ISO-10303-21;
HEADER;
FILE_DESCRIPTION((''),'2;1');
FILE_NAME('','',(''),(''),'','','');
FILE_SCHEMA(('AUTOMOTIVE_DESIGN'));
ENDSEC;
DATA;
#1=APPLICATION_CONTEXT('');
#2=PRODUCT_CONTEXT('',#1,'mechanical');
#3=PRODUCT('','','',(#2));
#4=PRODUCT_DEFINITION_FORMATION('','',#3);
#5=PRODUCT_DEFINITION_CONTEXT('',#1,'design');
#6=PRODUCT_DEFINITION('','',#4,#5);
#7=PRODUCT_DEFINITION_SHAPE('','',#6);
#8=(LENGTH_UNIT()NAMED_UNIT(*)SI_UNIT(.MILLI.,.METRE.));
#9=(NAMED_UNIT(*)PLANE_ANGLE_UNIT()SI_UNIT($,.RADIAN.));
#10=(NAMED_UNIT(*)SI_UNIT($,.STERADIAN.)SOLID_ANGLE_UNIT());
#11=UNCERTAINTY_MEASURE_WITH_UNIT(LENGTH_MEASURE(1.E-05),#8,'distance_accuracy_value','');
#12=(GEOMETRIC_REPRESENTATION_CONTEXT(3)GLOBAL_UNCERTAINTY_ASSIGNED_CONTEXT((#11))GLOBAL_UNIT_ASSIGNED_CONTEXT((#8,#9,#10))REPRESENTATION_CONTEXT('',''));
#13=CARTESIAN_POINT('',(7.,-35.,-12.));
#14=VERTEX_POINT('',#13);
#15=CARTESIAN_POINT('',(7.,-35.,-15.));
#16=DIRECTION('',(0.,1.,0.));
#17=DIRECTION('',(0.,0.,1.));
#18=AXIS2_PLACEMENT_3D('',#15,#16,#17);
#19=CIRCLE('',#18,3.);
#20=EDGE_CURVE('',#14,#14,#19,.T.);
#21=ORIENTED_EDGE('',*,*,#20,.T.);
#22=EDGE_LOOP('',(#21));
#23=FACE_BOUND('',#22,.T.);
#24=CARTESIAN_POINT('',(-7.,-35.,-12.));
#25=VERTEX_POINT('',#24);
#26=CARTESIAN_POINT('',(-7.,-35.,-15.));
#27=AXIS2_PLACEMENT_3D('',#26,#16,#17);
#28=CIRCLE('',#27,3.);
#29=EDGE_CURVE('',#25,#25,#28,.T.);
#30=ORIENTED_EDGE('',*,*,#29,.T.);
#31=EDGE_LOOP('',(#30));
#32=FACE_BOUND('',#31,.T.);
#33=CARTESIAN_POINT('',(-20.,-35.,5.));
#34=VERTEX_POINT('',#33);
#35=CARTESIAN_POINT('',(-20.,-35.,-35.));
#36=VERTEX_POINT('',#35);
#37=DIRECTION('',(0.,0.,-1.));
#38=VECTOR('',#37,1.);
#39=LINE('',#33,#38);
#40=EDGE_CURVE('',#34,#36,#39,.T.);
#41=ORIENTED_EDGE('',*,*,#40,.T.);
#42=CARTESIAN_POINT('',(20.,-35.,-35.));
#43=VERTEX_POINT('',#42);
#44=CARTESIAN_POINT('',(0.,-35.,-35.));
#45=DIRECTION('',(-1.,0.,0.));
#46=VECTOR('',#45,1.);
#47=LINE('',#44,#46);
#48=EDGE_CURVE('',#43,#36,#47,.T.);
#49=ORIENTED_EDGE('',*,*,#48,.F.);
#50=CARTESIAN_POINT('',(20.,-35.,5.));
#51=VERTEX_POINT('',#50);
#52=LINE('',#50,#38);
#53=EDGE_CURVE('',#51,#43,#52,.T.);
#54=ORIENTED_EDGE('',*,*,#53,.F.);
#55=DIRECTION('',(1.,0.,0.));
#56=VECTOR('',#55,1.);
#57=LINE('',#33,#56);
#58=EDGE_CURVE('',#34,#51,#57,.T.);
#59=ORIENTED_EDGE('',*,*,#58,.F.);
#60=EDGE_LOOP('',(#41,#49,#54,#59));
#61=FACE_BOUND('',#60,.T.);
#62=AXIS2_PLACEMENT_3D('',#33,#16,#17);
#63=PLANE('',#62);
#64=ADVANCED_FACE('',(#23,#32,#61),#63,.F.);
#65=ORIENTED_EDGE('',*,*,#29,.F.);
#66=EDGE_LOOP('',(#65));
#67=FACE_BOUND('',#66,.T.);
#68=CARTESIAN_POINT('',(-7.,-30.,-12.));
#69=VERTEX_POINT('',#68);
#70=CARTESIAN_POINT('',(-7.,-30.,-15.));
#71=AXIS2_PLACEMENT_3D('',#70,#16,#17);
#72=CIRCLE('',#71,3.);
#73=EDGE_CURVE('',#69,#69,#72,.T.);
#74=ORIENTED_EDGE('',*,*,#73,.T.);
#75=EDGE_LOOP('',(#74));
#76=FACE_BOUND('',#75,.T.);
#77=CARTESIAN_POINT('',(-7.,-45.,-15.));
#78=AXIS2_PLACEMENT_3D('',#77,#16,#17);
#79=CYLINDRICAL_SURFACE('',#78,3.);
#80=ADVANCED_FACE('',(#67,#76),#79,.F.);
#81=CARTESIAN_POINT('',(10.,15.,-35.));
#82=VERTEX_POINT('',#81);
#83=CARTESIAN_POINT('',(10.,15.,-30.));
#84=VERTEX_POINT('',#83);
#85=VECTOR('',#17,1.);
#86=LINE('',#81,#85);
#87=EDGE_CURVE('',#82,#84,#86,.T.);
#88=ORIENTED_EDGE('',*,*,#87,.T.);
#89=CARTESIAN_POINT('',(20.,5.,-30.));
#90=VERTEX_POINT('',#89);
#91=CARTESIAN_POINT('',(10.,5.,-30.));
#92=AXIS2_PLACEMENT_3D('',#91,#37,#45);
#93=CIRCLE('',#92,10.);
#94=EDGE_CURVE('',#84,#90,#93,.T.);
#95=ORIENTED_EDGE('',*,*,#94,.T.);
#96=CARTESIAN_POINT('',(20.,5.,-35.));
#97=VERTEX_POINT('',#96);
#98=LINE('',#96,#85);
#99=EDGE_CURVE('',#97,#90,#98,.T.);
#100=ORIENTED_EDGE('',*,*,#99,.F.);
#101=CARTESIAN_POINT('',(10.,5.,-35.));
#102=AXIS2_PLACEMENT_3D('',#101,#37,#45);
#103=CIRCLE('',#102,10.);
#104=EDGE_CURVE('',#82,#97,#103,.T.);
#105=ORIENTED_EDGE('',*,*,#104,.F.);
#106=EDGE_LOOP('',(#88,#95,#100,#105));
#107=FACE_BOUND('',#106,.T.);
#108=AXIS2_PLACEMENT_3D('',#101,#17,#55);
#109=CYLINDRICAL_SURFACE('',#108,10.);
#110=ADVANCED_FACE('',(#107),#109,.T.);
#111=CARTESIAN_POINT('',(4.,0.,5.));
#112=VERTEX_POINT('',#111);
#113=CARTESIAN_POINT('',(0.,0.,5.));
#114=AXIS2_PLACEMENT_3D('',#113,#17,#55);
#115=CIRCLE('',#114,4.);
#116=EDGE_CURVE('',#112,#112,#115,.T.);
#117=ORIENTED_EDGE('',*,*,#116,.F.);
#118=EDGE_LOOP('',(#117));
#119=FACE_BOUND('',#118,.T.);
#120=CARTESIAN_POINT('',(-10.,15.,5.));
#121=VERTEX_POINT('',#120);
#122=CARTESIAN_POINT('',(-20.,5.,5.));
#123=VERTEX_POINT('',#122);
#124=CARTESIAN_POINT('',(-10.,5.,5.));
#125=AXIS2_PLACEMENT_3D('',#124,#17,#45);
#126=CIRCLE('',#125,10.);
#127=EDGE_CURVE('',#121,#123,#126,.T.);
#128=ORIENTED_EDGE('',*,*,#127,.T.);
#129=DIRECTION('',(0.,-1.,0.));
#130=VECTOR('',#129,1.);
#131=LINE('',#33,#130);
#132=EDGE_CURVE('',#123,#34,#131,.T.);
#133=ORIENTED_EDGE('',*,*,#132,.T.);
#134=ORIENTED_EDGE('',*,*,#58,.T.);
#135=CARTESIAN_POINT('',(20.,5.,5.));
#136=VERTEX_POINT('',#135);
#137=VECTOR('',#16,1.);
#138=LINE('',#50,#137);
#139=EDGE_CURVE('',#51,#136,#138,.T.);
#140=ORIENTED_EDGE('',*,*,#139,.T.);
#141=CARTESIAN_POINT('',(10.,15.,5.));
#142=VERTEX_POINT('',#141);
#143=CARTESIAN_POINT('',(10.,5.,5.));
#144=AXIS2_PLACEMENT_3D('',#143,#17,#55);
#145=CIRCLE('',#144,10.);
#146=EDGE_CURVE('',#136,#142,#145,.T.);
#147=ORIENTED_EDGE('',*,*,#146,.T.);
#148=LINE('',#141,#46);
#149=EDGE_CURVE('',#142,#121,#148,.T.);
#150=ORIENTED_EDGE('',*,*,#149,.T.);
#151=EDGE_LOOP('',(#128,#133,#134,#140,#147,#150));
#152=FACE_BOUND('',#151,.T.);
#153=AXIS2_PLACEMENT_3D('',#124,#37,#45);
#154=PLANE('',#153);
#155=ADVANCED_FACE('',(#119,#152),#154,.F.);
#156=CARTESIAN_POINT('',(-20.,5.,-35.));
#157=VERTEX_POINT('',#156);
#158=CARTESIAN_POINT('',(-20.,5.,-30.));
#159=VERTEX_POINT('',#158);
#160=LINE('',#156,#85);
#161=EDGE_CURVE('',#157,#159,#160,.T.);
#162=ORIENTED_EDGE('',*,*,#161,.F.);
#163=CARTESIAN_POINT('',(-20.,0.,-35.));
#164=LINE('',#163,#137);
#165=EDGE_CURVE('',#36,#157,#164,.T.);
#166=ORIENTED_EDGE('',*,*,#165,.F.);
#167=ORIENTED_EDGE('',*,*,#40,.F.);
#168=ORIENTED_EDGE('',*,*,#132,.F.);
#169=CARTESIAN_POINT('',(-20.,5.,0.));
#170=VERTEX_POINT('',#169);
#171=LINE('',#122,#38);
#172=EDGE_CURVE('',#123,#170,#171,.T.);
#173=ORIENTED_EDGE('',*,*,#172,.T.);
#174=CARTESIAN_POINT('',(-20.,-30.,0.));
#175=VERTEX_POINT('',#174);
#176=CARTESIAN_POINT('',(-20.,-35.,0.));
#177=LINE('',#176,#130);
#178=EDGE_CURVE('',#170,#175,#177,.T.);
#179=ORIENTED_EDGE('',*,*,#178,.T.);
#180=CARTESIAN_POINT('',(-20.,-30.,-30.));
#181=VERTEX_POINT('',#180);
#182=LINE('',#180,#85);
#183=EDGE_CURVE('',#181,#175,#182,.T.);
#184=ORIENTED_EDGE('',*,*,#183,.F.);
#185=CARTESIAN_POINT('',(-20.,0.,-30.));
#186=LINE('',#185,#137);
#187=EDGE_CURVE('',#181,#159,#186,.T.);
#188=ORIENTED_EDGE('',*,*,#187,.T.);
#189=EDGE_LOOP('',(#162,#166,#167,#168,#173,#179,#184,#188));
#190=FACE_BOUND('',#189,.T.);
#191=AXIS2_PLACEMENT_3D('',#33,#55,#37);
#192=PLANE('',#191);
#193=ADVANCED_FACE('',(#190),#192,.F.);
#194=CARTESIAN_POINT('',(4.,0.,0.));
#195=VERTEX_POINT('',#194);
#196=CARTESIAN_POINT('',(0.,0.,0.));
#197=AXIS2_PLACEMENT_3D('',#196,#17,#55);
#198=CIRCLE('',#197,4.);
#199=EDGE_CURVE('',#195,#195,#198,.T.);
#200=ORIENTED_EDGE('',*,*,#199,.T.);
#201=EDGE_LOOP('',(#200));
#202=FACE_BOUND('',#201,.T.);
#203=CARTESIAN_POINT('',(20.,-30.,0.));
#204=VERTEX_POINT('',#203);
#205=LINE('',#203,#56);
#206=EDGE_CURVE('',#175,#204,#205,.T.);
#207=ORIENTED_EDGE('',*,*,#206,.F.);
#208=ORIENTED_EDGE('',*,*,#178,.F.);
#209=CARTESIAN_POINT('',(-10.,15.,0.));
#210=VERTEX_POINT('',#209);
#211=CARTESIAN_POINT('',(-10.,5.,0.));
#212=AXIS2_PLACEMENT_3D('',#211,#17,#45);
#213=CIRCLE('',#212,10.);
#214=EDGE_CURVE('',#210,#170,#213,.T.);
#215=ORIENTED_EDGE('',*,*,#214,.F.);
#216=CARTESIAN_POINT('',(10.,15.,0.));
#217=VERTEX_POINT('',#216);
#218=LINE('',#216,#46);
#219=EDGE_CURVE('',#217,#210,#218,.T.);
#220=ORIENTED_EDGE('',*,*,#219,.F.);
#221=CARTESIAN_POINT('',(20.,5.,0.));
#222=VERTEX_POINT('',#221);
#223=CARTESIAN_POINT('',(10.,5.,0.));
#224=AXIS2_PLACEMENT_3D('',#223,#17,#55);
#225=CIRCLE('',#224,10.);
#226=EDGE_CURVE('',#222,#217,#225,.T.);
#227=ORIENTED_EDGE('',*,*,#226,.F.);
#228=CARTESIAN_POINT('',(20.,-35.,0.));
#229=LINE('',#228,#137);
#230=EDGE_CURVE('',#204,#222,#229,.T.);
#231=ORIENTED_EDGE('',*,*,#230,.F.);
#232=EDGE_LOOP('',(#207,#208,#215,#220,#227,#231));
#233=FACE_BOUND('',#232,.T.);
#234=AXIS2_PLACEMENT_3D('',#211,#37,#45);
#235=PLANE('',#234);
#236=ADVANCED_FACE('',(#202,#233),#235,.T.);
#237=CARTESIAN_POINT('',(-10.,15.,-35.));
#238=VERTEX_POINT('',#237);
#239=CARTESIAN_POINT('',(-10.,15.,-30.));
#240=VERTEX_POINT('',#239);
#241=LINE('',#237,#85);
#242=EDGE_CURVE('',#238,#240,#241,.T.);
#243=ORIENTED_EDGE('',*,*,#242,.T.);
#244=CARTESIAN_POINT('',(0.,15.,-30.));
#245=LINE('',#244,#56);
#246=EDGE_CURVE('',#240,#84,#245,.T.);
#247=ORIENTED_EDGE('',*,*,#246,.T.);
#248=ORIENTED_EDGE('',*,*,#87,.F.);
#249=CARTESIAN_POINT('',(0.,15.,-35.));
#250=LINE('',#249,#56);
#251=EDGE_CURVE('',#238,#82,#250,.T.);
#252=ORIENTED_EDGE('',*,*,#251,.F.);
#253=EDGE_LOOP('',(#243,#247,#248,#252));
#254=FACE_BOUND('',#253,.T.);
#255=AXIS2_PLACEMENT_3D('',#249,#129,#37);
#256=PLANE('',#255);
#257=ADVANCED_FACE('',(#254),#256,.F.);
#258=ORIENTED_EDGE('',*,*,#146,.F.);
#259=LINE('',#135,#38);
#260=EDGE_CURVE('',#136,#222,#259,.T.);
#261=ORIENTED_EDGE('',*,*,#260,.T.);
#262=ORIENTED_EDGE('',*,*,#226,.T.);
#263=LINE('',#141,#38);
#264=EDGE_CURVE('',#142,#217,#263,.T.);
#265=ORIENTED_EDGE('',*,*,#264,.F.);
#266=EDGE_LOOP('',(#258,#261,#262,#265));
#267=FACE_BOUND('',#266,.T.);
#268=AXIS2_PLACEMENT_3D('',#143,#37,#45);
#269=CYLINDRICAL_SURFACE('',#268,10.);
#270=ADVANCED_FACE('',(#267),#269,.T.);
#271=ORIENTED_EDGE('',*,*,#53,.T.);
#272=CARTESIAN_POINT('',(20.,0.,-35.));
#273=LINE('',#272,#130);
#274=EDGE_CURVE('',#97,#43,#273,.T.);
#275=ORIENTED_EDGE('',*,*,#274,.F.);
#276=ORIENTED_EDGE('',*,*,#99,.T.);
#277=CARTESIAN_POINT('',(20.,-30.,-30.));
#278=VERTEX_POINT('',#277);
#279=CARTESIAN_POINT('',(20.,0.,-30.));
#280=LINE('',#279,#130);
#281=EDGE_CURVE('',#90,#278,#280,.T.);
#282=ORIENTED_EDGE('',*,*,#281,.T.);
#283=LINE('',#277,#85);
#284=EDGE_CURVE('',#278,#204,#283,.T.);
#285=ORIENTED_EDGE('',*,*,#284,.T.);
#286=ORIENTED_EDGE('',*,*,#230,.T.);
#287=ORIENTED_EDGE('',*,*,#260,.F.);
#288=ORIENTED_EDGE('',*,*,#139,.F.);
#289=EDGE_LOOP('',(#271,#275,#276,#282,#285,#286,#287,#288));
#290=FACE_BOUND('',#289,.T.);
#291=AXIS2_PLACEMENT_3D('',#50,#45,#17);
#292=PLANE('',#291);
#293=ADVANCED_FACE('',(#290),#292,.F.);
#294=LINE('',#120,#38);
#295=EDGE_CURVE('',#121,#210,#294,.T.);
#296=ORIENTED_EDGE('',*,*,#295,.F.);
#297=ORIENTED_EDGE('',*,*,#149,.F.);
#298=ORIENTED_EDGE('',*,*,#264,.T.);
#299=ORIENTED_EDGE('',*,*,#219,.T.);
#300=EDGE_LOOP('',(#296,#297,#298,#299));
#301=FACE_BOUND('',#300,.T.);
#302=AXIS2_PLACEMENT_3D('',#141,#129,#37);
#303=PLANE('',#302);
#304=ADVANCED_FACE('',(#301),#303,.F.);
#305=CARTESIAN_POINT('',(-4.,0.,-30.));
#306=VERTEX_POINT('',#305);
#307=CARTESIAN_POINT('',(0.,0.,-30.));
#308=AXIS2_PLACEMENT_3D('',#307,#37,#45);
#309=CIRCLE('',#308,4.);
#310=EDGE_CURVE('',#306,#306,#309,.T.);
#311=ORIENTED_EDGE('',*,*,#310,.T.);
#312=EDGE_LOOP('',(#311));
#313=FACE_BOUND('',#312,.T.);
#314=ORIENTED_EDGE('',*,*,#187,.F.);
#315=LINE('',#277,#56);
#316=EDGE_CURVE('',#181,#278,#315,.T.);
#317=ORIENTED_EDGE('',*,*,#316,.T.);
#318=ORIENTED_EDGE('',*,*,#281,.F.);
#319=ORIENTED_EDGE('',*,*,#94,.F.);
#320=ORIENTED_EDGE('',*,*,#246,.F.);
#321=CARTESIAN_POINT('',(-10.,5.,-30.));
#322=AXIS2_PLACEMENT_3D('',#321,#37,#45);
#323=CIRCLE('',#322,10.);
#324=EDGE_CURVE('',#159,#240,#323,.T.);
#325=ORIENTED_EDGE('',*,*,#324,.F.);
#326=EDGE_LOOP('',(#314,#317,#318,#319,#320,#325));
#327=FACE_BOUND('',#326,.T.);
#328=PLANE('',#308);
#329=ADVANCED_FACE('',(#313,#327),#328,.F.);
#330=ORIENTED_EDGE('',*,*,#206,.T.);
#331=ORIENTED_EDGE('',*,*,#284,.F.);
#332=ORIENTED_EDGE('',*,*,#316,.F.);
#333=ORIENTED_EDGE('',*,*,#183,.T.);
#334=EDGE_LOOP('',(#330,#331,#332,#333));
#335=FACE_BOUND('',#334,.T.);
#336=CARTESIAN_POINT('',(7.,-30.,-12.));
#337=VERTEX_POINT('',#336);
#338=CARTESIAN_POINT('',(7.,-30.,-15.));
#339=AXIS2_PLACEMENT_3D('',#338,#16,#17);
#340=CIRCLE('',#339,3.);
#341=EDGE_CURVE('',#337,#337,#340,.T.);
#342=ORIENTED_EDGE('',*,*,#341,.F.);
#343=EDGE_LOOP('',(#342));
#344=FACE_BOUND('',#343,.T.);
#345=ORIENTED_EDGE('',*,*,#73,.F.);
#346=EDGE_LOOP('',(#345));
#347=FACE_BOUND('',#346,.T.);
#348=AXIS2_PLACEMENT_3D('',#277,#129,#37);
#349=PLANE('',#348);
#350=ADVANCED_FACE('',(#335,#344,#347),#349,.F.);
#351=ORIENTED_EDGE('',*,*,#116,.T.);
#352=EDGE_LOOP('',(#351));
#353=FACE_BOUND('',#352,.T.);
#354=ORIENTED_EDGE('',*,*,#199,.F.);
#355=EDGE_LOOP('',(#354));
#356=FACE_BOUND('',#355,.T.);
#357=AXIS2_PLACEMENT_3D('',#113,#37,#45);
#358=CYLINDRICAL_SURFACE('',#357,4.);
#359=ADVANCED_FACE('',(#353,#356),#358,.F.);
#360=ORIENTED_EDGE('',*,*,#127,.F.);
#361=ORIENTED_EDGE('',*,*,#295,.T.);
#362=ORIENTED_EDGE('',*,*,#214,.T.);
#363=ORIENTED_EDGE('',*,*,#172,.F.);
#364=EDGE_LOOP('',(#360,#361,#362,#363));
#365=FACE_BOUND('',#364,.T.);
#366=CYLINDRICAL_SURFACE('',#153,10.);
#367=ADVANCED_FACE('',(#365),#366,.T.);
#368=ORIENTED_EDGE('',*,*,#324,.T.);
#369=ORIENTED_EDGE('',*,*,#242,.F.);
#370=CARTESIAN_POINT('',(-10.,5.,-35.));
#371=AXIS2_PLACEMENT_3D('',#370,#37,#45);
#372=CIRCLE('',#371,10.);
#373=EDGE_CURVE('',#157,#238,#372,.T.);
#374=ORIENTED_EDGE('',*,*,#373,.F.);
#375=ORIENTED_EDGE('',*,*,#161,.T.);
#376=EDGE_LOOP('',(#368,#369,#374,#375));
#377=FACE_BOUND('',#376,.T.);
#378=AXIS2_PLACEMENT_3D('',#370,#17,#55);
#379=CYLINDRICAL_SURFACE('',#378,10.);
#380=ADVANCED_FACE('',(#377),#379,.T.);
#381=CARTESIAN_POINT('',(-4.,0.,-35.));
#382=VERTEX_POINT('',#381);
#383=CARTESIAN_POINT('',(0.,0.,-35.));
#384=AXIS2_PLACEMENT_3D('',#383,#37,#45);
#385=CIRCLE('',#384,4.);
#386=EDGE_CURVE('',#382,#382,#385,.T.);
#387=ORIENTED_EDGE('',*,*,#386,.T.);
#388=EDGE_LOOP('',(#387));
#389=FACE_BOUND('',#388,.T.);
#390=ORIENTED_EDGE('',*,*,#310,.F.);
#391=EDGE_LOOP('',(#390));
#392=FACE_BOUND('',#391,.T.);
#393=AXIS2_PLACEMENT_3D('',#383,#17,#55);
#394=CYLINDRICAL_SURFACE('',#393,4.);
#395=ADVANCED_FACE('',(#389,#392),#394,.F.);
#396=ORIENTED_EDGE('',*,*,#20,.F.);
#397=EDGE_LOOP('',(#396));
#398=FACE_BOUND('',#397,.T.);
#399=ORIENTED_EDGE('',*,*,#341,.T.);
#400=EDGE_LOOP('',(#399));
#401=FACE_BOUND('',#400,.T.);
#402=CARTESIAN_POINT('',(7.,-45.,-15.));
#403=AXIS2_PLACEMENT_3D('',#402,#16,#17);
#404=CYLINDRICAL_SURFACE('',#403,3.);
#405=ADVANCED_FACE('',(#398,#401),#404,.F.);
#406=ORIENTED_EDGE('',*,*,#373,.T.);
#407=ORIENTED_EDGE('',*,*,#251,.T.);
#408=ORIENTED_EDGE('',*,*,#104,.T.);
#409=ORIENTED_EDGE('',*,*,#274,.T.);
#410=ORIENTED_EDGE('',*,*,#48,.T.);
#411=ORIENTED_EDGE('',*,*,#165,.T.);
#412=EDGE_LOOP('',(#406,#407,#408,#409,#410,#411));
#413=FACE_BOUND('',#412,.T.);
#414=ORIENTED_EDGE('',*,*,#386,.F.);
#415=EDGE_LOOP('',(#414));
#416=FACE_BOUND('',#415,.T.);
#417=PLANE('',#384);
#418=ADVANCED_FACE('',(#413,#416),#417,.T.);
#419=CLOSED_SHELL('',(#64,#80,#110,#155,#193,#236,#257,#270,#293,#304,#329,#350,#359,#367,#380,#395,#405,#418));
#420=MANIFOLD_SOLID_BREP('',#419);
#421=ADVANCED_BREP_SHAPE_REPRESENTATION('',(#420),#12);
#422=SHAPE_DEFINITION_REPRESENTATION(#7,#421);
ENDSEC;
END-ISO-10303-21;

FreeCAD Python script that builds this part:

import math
import FreeCAD as App
import Part
import Sketcher
Q = App.Units.Quantity

doc = App.newDocument("Part")
body = doc.addObject("PartDesign::Body", "Body")

sketch1 = doc.addObject("Sketcher::SketchObject", "Sketch")
body.addObject(sketch1)
sketch1.AttachmentSupport = (doc.XY_Plane, [""])
sketch1.MapMode = "FlatFace"
sketch1.addGeometry([
    Part.LineSegment(App.Vector(-20, -35, 0), App.Vector(20, -35, 0)),
    Part.LineSegment(App.Vector(20, -35, 0), App.Vector(20, 5, 0)),
    Part.ArcOfCircle(Part.Circle(App.Vector(10, 5, 0), App.Vector(0, 0, 1), 10), math.radians(0), math.radians(90)),
    Part.LineSegment(App.Vector(10, 15, 0), App.Vector(-10, 15, 0)),
    Part.ArcOfCircle(Part.Circle(App.Vector(-10, 5, 0), App.Vector(0, 0, 1), 10), math.radians(90), math.radians(180)),
    Part.LineSegment(App.Vector(-20, 5, 0), App.Vector(-20, -35, 0)),
    Part.Circle(App.Vector(0, 0, 0), App.Vector(0, 0, 1), 4),
], False)
sketch1.addConstraint([
    Sketcher.Constraint("Coincident", 0, 2, 1, 1),
    Sketcher.Constraint("Tangent", 1, 2, 2, 1),
    Sketcher.Constraint("Tangent", 2, 2, 3, 1),
    Sketcher.Constraint("Tangent", 3, 2, 4, 1),
    Sketcher.Constraint("Tangent", 4, 2, 5, 1),
    Sketcher.Constraint("Coincident", 5, 2, 0, 1),
    Sketcher.Constraint("Horizontal", 0),
    Sketcher.Constraint("Vertical", 1),
    Sketcher.Constraint("Horizontal", 3),
    Sketcher.Constraint("Vertical", 5),
    Sketcher.Constraint("Coincident", 6, 3, -1, 1),
    Sketcher.Constraint("Equal", 2, 4),
    Sketcher.Constraint("Equal", 0, 1),
    Sketcher.Constraint("Diameter", 6, Q("8 mm")),
    Sketcher.Constraint("Radius", 2, Q("10 mm")),
    Sketcher.Constraint("DistanceX", 0, 1, 0, 2, Q("40 mm")),
    Sketcher.Constraint("DistanceX", -1, 1, 2, 3, Q("10 mm")),
    Sketcher.Constraint("DistanceY", -1, 1, 2, 3, Q("5 mm")),
])
pad1 = doc.addObject("PartDesign::Pad", "Pad")
body.addObject(pad1)
pad1.Profile = sketch1
pad1.Length = 5

sketch2 = doc.addObject("Sketcher::SketchObject", "Sketch001")
body.addObject(sketch2)
sketch2.AttachmentSupport = (doc.XY_Plane, [""])
sketch2.MapMode = "FlatFace"
sketch2.addGeometry([
    Part.LineSegment(App.Vector(20, -30, 0), App.Vector(20, -35, 0)),
    Part.LineSegment(App.Vector(20, -35, 0), App.Vector(-20, -35, 0)),
    Part.LineSegment(App.Vector(-20, -35, 0), App.Vector(-20, -30, 0)),
    Part.LineSegment(App.Vector(-20, -30, 0), App.Vector(20, -30, 0)),
], False)
sketch2.addConstraint([
    Sketcher.Constraint("Coincident", 0, 2, 1, 1),
    Sketcher.Constraint("Coincident", 1, 2, 2, 1),
    Sketcher.Constraint("Coincident", 2, 2, 3, 1),
    Sketcher.Constraint("Coincident", 3, 2, 0, 1),
    Sketcher.Constraint("Vertical", 0),
    Sketcher.Constraint("Horizontal", 1),
    Sketcher.Constraint("Vertical", 2),
    Sketcher.Constraint("Horizontal", 3),
    Sketcher.Constraint("DistanceX", 1, 2, 1, 1, Q("40 mm")),
    Sketcher.Constraint("DistanceY", 0, 2, 0, 1, Q("5 mm")),
    Sketcher.Constraint("DistanceX", -1, 1, 0, 2, Q("20 mm")),
    Sketcher.Constraint("DistanceY", 0, 2, -1, 1, Q("35 mm")),
])
pad2 = doc.addObject("PartDesign::Pad", "Pad001")
body.addObject(pad2)
pad2.Profile = sketch2
pad2.Length = 30
pad2.Reversed = True

sketch3 = doc.addObject("Sketcher::SketchObject", "Sketch002")
body.addObject(sketch3)
sketch3.AttachmentSupport = (doc.XY_Plane, [""])
sketch3.MapMode = "FlatFace"
sketch3.AttachmentOffset = App.Placement(App.Vector(0, 0, -35), App.Rotation())
sketch3.addGeometry([
    Part.LineSegment(App.Vector(20, -35, 0), App.Vector(-20, -35, 0)),
    Part.LineSegment(App.Vector(-20, -35, 0), App.Vector(-20, 5, 0)),
    Part.ArcOfCircle(Part.Circle(App.Vector(-10, 5, 0), App.Vector(0, 0, 1), 10), math.radians(90), math.radians(180)),
    Part.LineSegment(App.Vector(-10, 15, 0), App.Vector(10, 15, 0)),
    Part.ArcOfCircle(Part.Circle(App.Vector(10, 5, 0), App.Vector(0, 0, 1), 10), math.radians(0), math.radians(90)),
    Part.LineSegment(App.Vector(20, 5, 0), App.Vector(20, -35, 0)),
    Part.Circle(App.Vector(0, 0, 0), App.Vector(0, 0, 1), 4),
], False)
sketch3.addConstraint([
    Sketcher.Constraint("Coincident", 0, 2, 1, 1),
    Sketcher.Constraint("Tangent", 1, 2, 2, 2),
    Sketcher.Constraint("Tangent", 2, 1, 3, 1),
    Sketcher.Constraint("Tangent", 3, 2, 4, 2),
    Sketcher.Constraint("Tangent", 4, 1, 5, 1),
    Sketcher.Constraint("Coincident", 5, 2, 0, 1),
    Sketcher.Constraint("Horizontal", 0),
    Sketcher.Constraint("Vertical", 1),
    Sketcher.Constraint("Horizontal", 3),
    Sketcher.Constraint("Vertical", 5),
    Sketcher.Constraint("Coincident", 6, 3, -1, 1),
    Sketcher.Constraint("Equal", 2, 4),
    Sketcher.Constraint("Equal", 0, 1),
    Sketcher.Constraint("Diameter", 6, Q("8 mm")),
    Sketcher.Constraint("Radius", 2, Q("10 mm")),
    Sketcher.Constraint("DistanceX", 0, 2, 0, 1, Q("40 mm")),
    Sketcher.Constraint("DistanceX", 2, 3, -1, 1, Q("10 mm")),
    Sketcher.Constraint("DistanceY", -1, 1, 2, 3, Q("5 mm")),
])
pad3 = doc.addObject("PartDesign::Pad", "Pad002")
body.addObject(pad3)
pad3.Profile = sketch3
pad3.Length = 5

sketch4 = doc.addObject("Sketcher::SketchObject", "Sketch003")
body.addObject(sketch4)
sketch4.AttachmentSupport = (doc.XZ_Plane, [""])
sketch4.MapMode = "FlatFace"
sketch4.AttachmentOffset = App.Placement(App.Vector(0, 0, 30), App.Rotation())
sketch4.addGeometry([
    Part.Circle(App.Vector(-7, -15, 0), App.Vector(0, 0, 1), 3),
    Part.Circle(App.Vector(7, -15, 0), App.Vector(0, 0, 1), 3),
], False)
sketch4.addConstraint([
    Sketcher.Constraint("Equal", 0, 1),
    Sketcher.Constraint("Symmetric", 0, 3, 1, 3, -2),
    Sketcher.Constraint("Diameter", 0, Q("6 mm")),
    Sketcher.Constraint("DistanceX", 0, 3, -1, 1, Q("7 mm")),
    Sketcher.Constraint("DistanceY", 0, 3, -1, 1, Q("15 mm")),
])
pocket1 = doc.addObject("PartDesign::Pocket", "Pocket")
body.addObject(pocket1)
pocket1.Profile = sketch4
pocket1.Length = 15
pocket1.Reversed = True

doc.recompute()
